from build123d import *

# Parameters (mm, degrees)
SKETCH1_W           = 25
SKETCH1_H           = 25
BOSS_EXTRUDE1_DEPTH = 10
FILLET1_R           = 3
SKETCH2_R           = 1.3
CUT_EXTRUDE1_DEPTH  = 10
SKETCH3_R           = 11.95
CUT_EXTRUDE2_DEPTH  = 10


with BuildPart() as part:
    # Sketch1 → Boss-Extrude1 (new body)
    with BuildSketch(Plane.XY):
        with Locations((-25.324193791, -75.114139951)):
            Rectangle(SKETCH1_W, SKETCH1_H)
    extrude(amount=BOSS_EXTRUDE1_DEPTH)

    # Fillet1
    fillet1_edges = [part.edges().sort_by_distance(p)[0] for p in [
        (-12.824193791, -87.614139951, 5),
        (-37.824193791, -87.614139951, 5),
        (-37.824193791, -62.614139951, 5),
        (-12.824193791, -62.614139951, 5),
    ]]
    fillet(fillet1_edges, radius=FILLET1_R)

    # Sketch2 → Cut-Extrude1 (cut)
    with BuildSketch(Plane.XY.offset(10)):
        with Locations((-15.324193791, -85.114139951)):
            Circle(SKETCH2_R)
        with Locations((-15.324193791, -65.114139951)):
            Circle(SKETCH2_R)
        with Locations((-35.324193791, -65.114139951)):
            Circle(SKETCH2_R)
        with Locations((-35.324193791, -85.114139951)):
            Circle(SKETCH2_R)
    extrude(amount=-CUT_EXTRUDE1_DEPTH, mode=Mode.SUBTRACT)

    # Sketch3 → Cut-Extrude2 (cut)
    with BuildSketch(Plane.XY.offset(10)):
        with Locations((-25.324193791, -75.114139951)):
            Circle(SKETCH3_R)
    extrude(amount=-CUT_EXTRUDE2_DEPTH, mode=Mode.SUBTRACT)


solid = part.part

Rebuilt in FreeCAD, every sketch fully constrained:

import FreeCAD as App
import Part
import Sketcher

V = App.Vector
Q = App.Units.Quantity


def edges_at(feature, points):
    """Names of the edges that pass closest to the given points."""
    edges = feature.Shape.Edges
    near = lambda p: min(range(len(edges)), key=lambda i: edges[i].distToShape(Part.Vertex(*p))[0])
    return sorted({f"Edge{near(p) + 1}" for p in points})


def add_polygon(sketch, points):
    """Adds a closed chain of lines whose ends are joined by coincident constraints."""
    first, n = sketch.GeometryCount, len(points)
    for a, b in zip(points, points[1:] + points[:1]):
        sketch.addGeometry(Part.LineSegment(App.Vector(*a, 0), App.Vector(*b, 0)), False)
    for i in range(n):
        sketch.addConstraint(Sketcher.Constraint("Coincident", first + i, 2, first + (i + 1) % n, 1))

doc = App.newDocument("Part")
body = doc.addObject("PartDesign::Body", "Body")

sketch1 = doc.addObject("Sketcher::SketchObject", "Sketch")
body.addObject(sketch1)
sketch1.AttachmentSupport = (doc.XY_Plane, [""])
sketch1.MapMode = "FlatFace"
add_polygon(sketch1, [(-38, -63), (-38, -88), (-13, -88), (-13, -63)])
sketch1.addConstraint(Sketcher.Constraint("Vertical", 0))
sketch1.addConstraint(Sketcher.Constraint("Horizontal", 1))
sketch1.addConstraint(Sketcher.Constraint("Vertical", 2))
sketch1.addConstraint(Sketcher.Constraint("Horizontal", 3))
sketch1.addConstraint(Sketcher.Constraint("Equal", 3, 0))
sketch1.addConstraint(Sketcher.Constraint("DistanceX", 1, 1, 1, 2, Q("25 mm")))
sketch1.addConstraint(Sketcher.Constraint("DistanceY", 0, 2, -1, 1, Q("87.61414 mm")))
sketch1.addConstraint(Sketcher.Constraint("DistanceX", 0, 2, -1, 1, Q("37.824194 mm")))
pad1 = doc.addObject("PartDesign::Pad", "Pad")
body.addObject(pad1)
pad1.Profile = sketch1
pad1.Length = 10
doc.recompute()

fillet = doc.addObject("PartDesign::Fillet", "Fillet")
body.addObject(fillet)
fillet.Base = (pad1, edges_at(pad1, [
    (-12.824, -87.614, 5),
    (-37.824, -87.614, 5),
    (-37.824, -62.614, 5),
    (-12.824, -62.614, 5),
]))
fillet.Radius = 3

sketch2 = doc.addObject("Sketcher::SketchObject", "Sketch001")
body.addObject(sketch2)
sketch2.AttachmentSupport = (doc.XY_Plane, [""])
sketch2.MapMode = "FlatFace"
sketch2.AttachmentOffset = App.Placement(V(0, 0, 10), App.Rotation())
sketch2.addGeometry(Part.Circle(V(-15.3, -85.1, 0), V(0, 0, 1), 1.3), False)
sketch2.addGeometry(Part.Circle(V(-15.3, -65.1, 0), V(0, 0, 1), 1.3), False)
sketch2.addGeometry(Part.Circle(V(-35.3, -65.1, 0), V(0, 0, 1), 1.3), False)
sketch2.addGeometry(Part.Circle(V(-35.3, -85.1, 0), V(0, 0, 1), 1.3), False)
sketch2.addConstraint(Sketcher.Constraint("Equal", 0, 1))
sketch2.addConstraint(Sketcher.Constraint("Equal", 1, 2))
sketch2.addConstraint(Sketcher.Constraint("Equal", 2, 3))
sketch2.addConstraint(Sketcher.Constraint("Horizontal", 1, 3, 2, 3))
sketch2.addConstraint(Sketcher.Constraint("Horizontal", 0, 3, 3, 3))
sketch2.addConstraint(Sketcher.Constraint("Vertical", 0, 3, 1, 3))
sketch2.addConstraint(Sketcher.Constraint("Vertical", 2, 3, 3, 3))
sketch2.addConstraint(Sketcher.Constraint("Diameter", 0, Q("2.6 mm")))
sketch2.addConstraint(Sketcher.Constraint("DistanceY", 0, 3, 1, 3, Q("20 mm")))
sketch2.addConstraint(Sketcher.Constraint("DistanceX", 2, 3, 1, 3, Q("20 mm")))
sketch2.addConstraint(Sketcher.Constraint("DistanceY", 0, 3, -1, 1, Q("85.11414 mm")))
sketch2.addConstraint(Sketcher.Constraint("DistanceX", 0, 3, -1, 1, Q("15.324194 mm")))
pocket1 = doc.addObject("PartDesign::Pocket", "Pocket")
body.addObject(pocket1)
pocket1.Profile = sketch2
pocket1.Length = 10

sketch3 = doc.addObject("Sketcher::SketchObject", "Sketch002")
body.addObject(sketch3)
sketch3.AttachmentSupport = (doc.XY_Plane, [""])
sketch3.MapMode = "FlatFace"
sketch3.AttachmentOffset = App.Placement(V(0, 0, 10), App.Rotation())
sketch3.addGeometry(Part.Circle(V(-25, -75, 0), V(0, 0, 1), 12), False)
sketch3.addConstraint(Sketcher.Constraint("Diameter", 0, Q("23.9 mm")))
sketch3.addConstraint(Sketcher.Constraint("DistanceY", 0, 3, -1, 1, Q("75.11414 mm")))
sketch3.addConstraint(Sketcher.Constraint("DistanceX", 0, 3, -1, 1, Q("25.324194 mm")))
pocket2 = doc.addObject("PartDesign::Pocket", "Pocket001")
body.addObject(pocket2)
pocket2.Profile = sketch3
pocket2.Length = 10

doc.recompute()
